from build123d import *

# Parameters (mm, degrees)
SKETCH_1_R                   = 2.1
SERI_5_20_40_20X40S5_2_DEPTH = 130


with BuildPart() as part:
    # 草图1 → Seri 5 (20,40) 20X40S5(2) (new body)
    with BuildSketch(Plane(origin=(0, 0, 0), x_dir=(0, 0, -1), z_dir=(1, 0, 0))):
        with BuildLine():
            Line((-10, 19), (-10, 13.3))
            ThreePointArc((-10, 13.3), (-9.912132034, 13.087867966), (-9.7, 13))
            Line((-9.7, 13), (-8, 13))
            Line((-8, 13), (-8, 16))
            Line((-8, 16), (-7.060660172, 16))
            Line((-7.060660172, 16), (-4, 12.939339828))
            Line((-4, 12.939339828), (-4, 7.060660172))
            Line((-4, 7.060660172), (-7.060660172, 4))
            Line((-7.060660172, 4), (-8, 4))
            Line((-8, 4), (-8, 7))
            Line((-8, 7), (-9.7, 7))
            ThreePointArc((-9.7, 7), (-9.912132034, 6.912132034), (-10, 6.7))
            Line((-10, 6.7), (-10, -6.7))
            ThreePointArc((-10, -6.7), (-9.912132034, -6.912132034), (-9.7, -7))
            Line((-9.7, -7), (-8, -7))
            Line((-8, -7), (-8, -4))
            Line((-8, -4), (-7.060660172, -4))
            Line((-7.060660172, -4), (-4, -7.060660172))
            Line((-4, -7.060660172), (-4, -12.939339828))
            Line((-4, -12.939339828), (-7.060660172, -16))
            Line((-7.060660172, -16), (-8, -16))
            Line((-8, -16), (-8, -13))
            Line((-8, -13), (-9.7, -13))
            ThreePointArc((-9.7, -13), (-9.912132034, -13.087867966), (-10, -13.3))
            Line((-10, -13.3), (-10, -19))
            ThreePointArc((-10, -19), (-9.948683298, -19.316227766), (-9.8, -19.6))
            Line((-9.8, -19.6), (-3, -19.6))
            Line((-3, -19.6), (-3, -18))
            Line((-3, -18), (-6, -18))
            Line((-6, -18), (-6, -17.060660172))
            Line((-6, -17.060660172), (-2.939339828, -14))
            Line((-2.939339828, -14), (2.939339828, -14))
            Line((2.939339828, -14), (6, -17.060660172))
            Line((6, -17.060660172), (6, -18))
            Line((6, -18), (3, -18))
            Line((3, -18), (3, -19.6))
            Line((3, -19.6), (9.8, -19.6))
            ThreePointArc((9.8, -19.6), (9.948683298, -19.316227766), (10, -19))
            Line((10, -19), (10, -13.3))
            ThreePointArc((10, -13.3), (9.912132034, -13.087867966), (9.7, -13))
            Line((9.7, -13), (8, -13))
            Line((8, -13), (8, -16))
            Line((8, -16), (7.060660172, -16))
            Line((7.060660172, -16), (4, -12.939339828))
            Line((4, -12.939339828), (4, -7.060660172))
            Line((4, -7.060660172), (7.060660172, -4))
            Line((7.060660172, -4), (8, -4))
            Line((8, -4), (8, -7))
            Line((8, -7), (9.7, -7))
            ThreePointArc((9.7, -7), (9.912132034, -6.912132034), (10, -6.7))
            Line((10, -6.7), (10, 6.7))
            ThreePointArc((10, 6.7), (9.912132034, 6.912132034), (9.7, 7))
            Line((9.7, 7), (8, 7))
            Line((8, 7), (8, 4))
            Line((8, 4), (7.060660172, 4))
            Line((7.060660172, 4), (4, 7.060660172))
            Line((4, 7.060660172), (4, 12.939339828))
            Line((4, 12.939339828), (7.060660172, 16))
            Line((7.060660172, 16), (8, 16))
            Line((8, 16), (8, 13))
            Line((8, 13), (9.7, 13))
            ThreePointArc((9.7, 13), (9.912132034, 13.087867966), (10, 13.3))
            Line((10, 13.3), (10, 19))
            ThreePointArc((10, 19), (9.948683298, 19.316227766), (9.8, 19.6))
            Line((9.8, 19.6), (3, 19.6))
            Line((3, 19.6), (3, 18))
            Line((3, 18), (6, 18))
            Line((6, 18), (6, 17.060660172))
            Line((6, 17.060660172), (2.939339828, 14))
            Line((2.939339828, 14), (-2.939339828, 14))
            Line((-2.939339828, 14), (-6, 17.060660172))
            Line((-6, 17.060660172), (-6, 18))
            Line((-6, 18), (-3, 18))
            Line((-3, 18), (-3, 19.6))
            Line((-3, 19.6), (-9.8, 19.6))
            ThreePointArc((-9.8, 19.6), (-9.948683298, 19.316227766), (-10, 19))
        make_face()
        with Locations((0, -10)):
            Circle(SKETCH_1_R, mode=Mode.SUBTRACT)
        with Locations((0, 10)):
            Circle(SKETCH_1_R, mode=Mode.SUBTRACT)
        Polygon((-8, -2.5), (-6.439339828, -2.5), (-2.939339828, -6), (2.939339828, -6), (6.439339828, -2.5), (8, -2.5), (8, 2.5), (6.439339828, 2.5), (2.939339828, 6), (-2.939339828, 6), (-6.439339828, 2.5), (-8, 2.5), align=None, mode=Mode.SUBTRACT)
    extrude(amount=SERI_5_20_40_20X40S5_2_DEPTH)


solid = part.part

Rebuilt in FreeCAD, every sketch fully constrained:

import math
import FreeCAD as App
import Part
import Sketcher

V = App.Vector

doc = App.newDocument("Part")
body = doc.addObject("PartDesign::Body", "Body")

sketch1 = body.newObject("Sketcher::SketchObject", "Sketch")
sketch1.AttachmentSupport = (doc.getObject("YZ_Plane"), [""])
sketch1.MapMode = "FlatFace"
sketch1.addGeometry([
    Part.LineSegment(V(19, 10, 0), V(13.3, 10, 0)),
    Part.ArcOfCircle(Part.Circle(V(13.3, 9.7, 0), V(0, 0, 1), 0.3), math.radians(90), math.radians(180)),
    Part.LineSegment(V(13, 9.7, 0), V(13, 8, 0)),
    Part.LineSegment(V(13, 8, 0), V(16, 8, 0)),
    Part.LineSegment(V(16, 8, 0), V(16, 7.06, 0)),
    Part.LineSegment(V(16, 7.06, 0), V(12.94, 4, 0)),
    Part.LineSegment(V(12.94, 4, 0), V(7.06, 4, 0)),
    Part.LineSegment(V(7.06, 4, 0), V(4, 7.06, 0)),
    Part.LineSegment(V(4, 7.06, 0), V(4, 8, 0)),
    Part.LineSegment(V(4, 8, 0), V(7, 8, 0)),
    Part.LineSegment(V(7, 8, 0), V(7, 9.7, 0)),
    Part.ArcOfCircle(Part.Circle(V(6.7, 9.7, 0), V(0, 0, 1), 0.3), math.radians(0), math.radians(90)),
    Part.LineSegment(V(6.7, 10, 0), V(-6.7, 10, 0)),
    Part.ArcOfCircle(Part.Circle(V(-6.7, 9.7, 0), V(0, 0, 1), 0.3), math.radians(90), math.radians(180)),
    Part.LineSegment(V(-7, 9.7, 0), V(-7, 8, 0)),
    Part.LineSegment(V(-7, 8, 0), V(-4, 8, 0)),
    Part.LineSegment(V(-4, 8, 0), V(-4, 7.06, 0)),
    Part.LineSegment(V(-4, 7.06, 0), V(-7.06, 4, 0)),
    Part.LineSegment(V(-7.06, 4, 0), V(-12.94, 4, 0)),
    Part.LineSegment(V(-12.94, 4, 0), V(-16, 7.06, 0)),
    Part.LineSegment(V(-16, 7.06, 0), V(-16, 8, 0)),
    Part.LineSegment(V(-16, 8, 0), V(-13, 8, 0)),
    Part.LineSegment(V(-13, 8, 0), V(-13, 9.7, 0)),
    Part.ArcOfCircle(Part.Circle(V(-13.3, 9.7, 0), V(0, 0, 1), 0.3), math.radians(0), math.radians(90)),
    Part.LineSegment(V(-13.3, 10, 0), V(-19, 10, 0)),
    Part.ArcOfCircle(Part.Circle(V(-19, 9, 0), V(0, 0, 1), 1), math.radians(90), math.radians(127)),
    Part.LineSegment(V(-19.6, 9.8, 0), V(-19.6, 3, 0)),
    Part.LineSegment(V(-19.6, 3, 0), V(-18, 3, 0)),
    Part.LineSegment(V(-18, 3, 0), V(-18, 6, 0)),
    Part.LineSegment(V(-18, 6, 0), V(-17.06, 6, 0)),
    Part.LineSegment(V(-17.06, 6, 0), V(-14, 2.94, 0)),
    Part.LineSegment(V(-14, 2.94, 0), V(-14, -2.94, 0)),
    Part.LineSegment(V(-14, -2.94, 0), V(-17.06, -6, 0)),
    Part.LineSegment(V(-17.06, -6, 0), V(-18, -6, 0)),
    Part.LineSegment(V(-18, -6, 0), V(-18, -3, 0)),
    Part.LineSegment(V(-18, -3, 0), V(-19.6, -3, 0)),
    Part.LineSegment(V(-19.6, -3, 0), V(-19.6, -9.8, 0)),
    Part.ArcOfCircle(Part.Circle(V(-19, -9, 0), V(0, 0, 1), 1), math.radians(-127), math.radians(-90)),
    Part.LineSegment(V(-19, -10, 0), V(-13.3, -10, 0)),
    Part.ArcOfCircle(Part.Circle(V(-13.3, -9.7, 0), V(0, 0, 1), 0.3), math.radians(-90), math.radians(0)),
    Part.LineSegment(V(-13, -9.7, 0), V(-13, -8, 0)),
    Part.LineSegment(V(-13, -8, 0), V(-16, -8, 0)),
    Part.LineSegment(V(-16, -8, 0), V(-16, -7.06, 0)),
    Part.LineSegment(V(-16, -7.06, 0), V(-12.94, -4, 0)),
    Part.LineSegment(V(-12.94, -4, 0), V(-7.06, -4, 0)),
    Part.LineSegment(V(-7.06, -4, 0), V(-4, -7.06, 0)),
    Part.LineSegment(V(-4, -7.06, 0), V(-4, -8, 0)),
    Part.LineSegment(V(-4, -8, 0), V(-7, -8, 0)),
    Part.LineSegment(V(-7, -8, 0), V(-7, -9.7, 0)),
    Part.ArcOfCircle(Part.Circle(V(-6.7, -9.7, 0), V(0, 0, 1), 0.3), math.radians(-180), math.radians(-90)),
    Part.LineSegment(V(-6.7, -10, 0), V(6.7, -10, 0)),
    Part.ArcOfCircle(Part.Circle(V(6.7, -9.7, 0), V(0, 0, 1), 0.3), math.radians(-90), math.radians(0)),
    Part.LineSegment(V(7, -9.7, 0), V(7, -8, 0)),
    Part.LineSegment(V(7, -8, 0), V(4, -8, 0)),
    Part.LineSegment(V(4, -8, 0), V(4, -7.06, 0)),
    Part.LineSegment(V(4, -7.06, 0), V(7.06, -4, 0)),
    Part.LineSegment(V(7.06, -4, 0), V(12.94, -4, 0)),
    Part.LineSegment(V(12.94, -4, 0), V(16, -7.06, 0)),
    Part.LineSegment(V(16, -7.06, 0), V(16, -8, 0)),
    Part.LineSegment(V(16, -8, 0), V(13, -8, 0)),
    Part.LineSegment(V(13, -8, 0), V(13, -9.7, 0)),
    Part.ArcOfCircle(Part.Circle(V(13.3, -9.7, 0), V(0, 0, 1), 0.3), math.radians(-180), math.radians(-90)),
    Part.LineSegment(V(13.3, -10, 0), V(19, -10, 0)),
    Part.ArcOfCircle(Part.Circle(V(19, -9, 0), V(0, 0, 1), 1), math.radians(-90), math.radians(-53)),
    Part.LineSegment(V(19.6, -9.8, 0), V(19.6, -3, 0)),
    Part.LineSegment(V(19.6, -3, 0), V(18, -3, 0)),
    Part.LineSegment(V(18, -3, 0), V(18, -6, 0)),
    Part.LineSegment(V(18, -6, 0), V(17.06, -6, 0)),
    Part.LineSegment(V(17.06, -6, 0), V(14, -2.94, 0)),
    Part.LineSegment(V(14, -2.94, 0), V(14, 2.94, 0)),
    Part.LineSegment(V(14, 2.94, 0), V(17.06, 6, 0)),
    Part.LineSegment(V(17.06, 6, 0), V(18, 6, 0)),
    Part.LineSegment(V(18, 6, 0), V(18, 3, 0)),
    Part.LineSegment(V(18, 3, 0), V(19.6, 3, 0)),
    Part.LineSegment(V(19.6, 3, 0), V(19.6, 9.8, 0)),
    Part.ArcOfCircle(Part.Circle(V(19, 9, 0), V(0, 0, 1), 1), math.radians(53), math.radians(90)),
    Part.Circle(V(-10, 0, 0), V(0, 0, 1), 2.1),
    Part.LineSegment(V(-2.5, 6.44, 0), V(-2.5, 8, 0)),
    Part.LineSegment(V(-2.5, 8, 0), V(2.5, 8, 0)),
    Part.LineSegment(V(2.5, 8, 0), V(2.5, 6.44, 0)),
    Part.LineSegment(V(2.5, 6.44, 0), V(6, 2.94, 0)),
    Part.LineSegment(V(6, 2.94, 0), V(6, -2.94, 0)),
    Part.LineSegment(V(6, -2.94, 0), V(2.5, -6.44, 0)),
    Part.LineSegment(V(2.5, -6.44, 0), V(2.5, -8, 0)),
    Part.LineSegment(V(2.5, -8, 0), V(-2.5, -8, 0)),
    Part.LineSegment(V(-2.5, -8, 0), V(-2.5, -6.44, 0)),
    Part.LineSegment(V(-2.5, -6.44, 0), V(-6, -2.94, 0)),
    Part.LineSegment(V(-6, -2.94, 0), V(-6, 2.94, 0)),
    Part.LineSegment(V(-6, 2.94, 0), V(-2.5, 6.44, 0)),
    Part.Circle(V(10, 0, 0), V(0, 0, 1), 2.1),
], False)
sketch1.addConstraint([
    Sketcher.Constraint("Tangent", 0, 2, 1, 1),
    Sketcher.Constraint("Tangent", 1, 2, 2, 1),
    Sketcher.Constraint("Coincident", 2, 2, 3, 1),
    Sketcher.Constraint("Coincident", 3, 2, 4, 1),
    Sketcher.Constraint("Coincident", 4, 2, 5, 1),
    Sketcher.Constraint("Coincident", 5, 2, 6, 1),
    Sketcher.Constraint("Coincident", 6, 2, 7, 1),
    Sketcher.Constraint("Coincident", 7, 2, 8, 1),
    Sketcher.Constraint("Coincident", 8, 2, 9, 1),
    Sketcher.Constraint("Coincident", 9, 2, 10, 1),
    Sketcher.Constraint("Tangent", 10, 2, 11, 1),
    Sketcher.Constraint("Tangent", 11, 2, 12, 1),
    Sketcher.Constraint("Tangent", 12, 2, 13, 1),
    Sketcher.Constraint("Tangent", 13, 2, 14, 1),
    Sketcher.Constraint("Coincident", 14, 2, 15, 1),
    Sketcher.Constraint("Coincident", 15, 2, 16, 1),
    Sketcher.Constraint("Coincident", 16, 2, 17, 1),
    Sketcher.Constraint("Coincident", 17, 2, 18, 1),
    Sketcher.Constraint("Coincident", 18, 2, 19, 1),
    Sketcher.Constraint("Coincident", 19, 2, 20, 1),
    Sketcher.Constraint("Coincident", 20, 2, 21, 1),
    Sketcher.Constraint("Coincident", 21, 2, 22, 1),
    Sketcher.Constraint("Tangent", 22, 2, 23, 1),
    Sketcher.Constraint("Tangent", 23, 2, 24, 1),
    Sketcher.Constraint("Tangent", 24, 2, 25, 1),
    Sketcher.Constraint("Coincident", 25, 2, 26, 1),
    Sketcher.Constraint("Coincident", 26, 2, 27, 1),
    Sketcher.Constraint("Coincident", 27, 2, 28, 1),
    Sketcher.Constraint("Coincident", 28, 2, 29, 1),
    Sketcher.Constraint("Coincident", 29, 2, 30, 1),
    Sketcher.Constraint("Coincident", 30, 2, 31, 1),
    Sketcher.Constraint("Coincident", 31, 2, 32, 1),
    Sketcher.Constraint("Coincident", 32, 2, 33, 1),
    Sketcher.Constraint("Coincident", 33, 2, 34, 1),
    Sketcher.Constraint("Coincident", 34, 2, 35, 1),
    Sketcher.Constraint("Coincident", 35, 2, 36, 1),
    Sketcher.Constraint("Coincident", 36, 2, 37, 1),
    Sketcher.Constraint("Tangent", 37, 2, 38, 1),
    Sketcher.Constraint("Tangent", 38, 2, 39, 1),
    Sketcher.Constraint("Tangent", 39, 2, 40, 1),
    Sketcher.Constraint("Coincident", 40, 2, 41, 1),
    Sketcher.Constraint("Coincident", 41, 2, 42, 1),
    Sketcher.Constraint("Coincident", 42, 2, 43, 1),
    Sketcher.Constraint("Coincident", 43, 2, 44, 1),
    Sketcher.Constraint("Coincident", 44, 2, 45, 1),
    Sketcher.Constraint("Coincident", 45, 2, 46, 1),
    Sketcher.Constraint("Coincident", 46, 2, 47, 1),
    Sketcher.Constraint("Coincident", 47, 2, 48, 1),
    Sketcher.Constraint("Tangent", 48, 2, 49, 1),
    Sketcher.Constraint("Tangent", 49, 2, 50, 1),
    Sketcher.Constraint("Tangent", 50, 2, 51, 1),
    Sketcher.Constraint("Tangent", 51, 2, 52, 1),
    Sketcher.Constraint("Coincident", 52, 2, 53, 1),
    Sketcher.Constraint("Coincident", 53, 2, 54, 1),
    Sketcher.Constraint("Coincident", 54, 2, 55, 1),
    Sketcher.Constraint("Coincident", 55, 2, 56, 1),
    Sketcher.Constraint("Coincident", 56, 2, 57, 1),
    Sketcher.Constraint("Coincident", 57, 2, 58, 1),
    Sketcher.Constraint("Coincident", 58, 2, 59, 1),
    Sketcher.Constraint("Coincident", 59, 2, 60, 1),
    Sketcher.Constraint("Tangent", 60, 2, 61, 1),
    Sketcher.Constraint("Tangent", 61, 2, 62, 1),
    Sketcher.Constraint("Tangent", 62, 2, 63, 1),
    Sketcher.Constraint("Coincident", 63, 2, 64, 1),
    Sketcher.Constraint("Coincident", 64, 2, 65, 1),
    Sketcher.Constraint("Coincident", 65, 2, 66, 1),
    Sketcher.Constraint("Coincident", 66, 2, 67, 1),
    Sketcher.Constraint("Coincident", 67, 2, 68, 1),
    Sketcher.Constraint("Coincident", 68, 2, 69, 1),
    Sketcher.Constraint("Coincident", 69, 2, 70, 1),
    Sketcher.Constraint("Coincident", 70, 2, 71, 1),
    Sketcher.Constraint("Coincident", 71, 2, 72, 1),
    Sketcher.Constraint("Coincident", 72, 2, 73, 1),
    Sketcher.Constraint("Coincident", 73, 2, 74, 1),
    Sketcher.Constraint("Coincident", 74, 2, 75, 1),
    Sketcher.Constraint("Tangent", 75, 2, 0, 1),
    Sketcher.Constraint("Coincident", 77, 2, 78, 1),
    Sketcher.Constraint("Coincident", 78, 2, 79, 1),
    Sketcher.Constraint("Coincident", 79, 2, 80, 1),
    Sketcher.Constraint("Coincident", 80, 2, 81, 1),
    Sketcher.Constraint("Coincident", 81, 2, 82, 1),
    Sketcher.Constraint("Coincident", 82, 2, 83, 1),
    Sketcher.Constraint("Coincident", 83, 2, 84, 1),
    Sketcher.Constraint("Coincident", 84, 2, 85, 1),
    Sketcher.Constraint("Coincident", 85, 2, 86, 1),
    Sketcher.Constraint("Coincident", 86, 2, 87, 1),
    Sketcher.Constraint("Coincident", 87, 2, 88, 1),
    Sketcher.Constraint("Coincident", 88, 2, 77, 1),
    Sketcher.Constraint("Horizontal", 0),
    Sketcher.Constraint("Vertical", 2),
    Sketcher.Constraint("Horizontal", 3),
    Sketcher.Constraint("Vertical", 4),
    Sketcher.Constraint("Horizontal", 6),
    Sketcher.Constraint("Vertical", 8),
    Sketcher.Constraint("Horizontal", 9),
    Sketcher.Constraint("Vertical", 10),
    Sketcher.Constraint("Horizontal", 12),
    Sketcher.Constraint("Vertical", 14),
    Sketcher.Constraint("Horizontal", 15),
    Sketcher.Constraint("Vertical", 16),
    Sketcher.Constraint("Horizontal", 18),
    Sketcher.Constraint("Vertical", 20),
    Sketcher.Constraint("Horizontal", 21),
    Sketcher.Constraint("Vertical", 22),
    Sketcher.Constraint("Horizontal", 24),
    Sketcher.Constraint("Vertical", 26),
    Sketcher.Constraint("Horizontal", 27),
    Sketcher.Constraint("Vertical", 28),
    Sketcher.Constraint("Horizontal", 29),
    Sketcher.Constraint("Vertical", 31),
    Sketcher.Constraint("Horizontal", 33),
    Sketcher.Constraint("Vertical", 34),
    Sketcher.Constraint("Horizontal", 35),
    Sketcher.Constraint("Vertical", 36),
    Sketcher.Constraint("Horizontal", 38),
    Sketcher.Constraint("Vertical", 40),
    Sketcher.Constraint("Horizontal", 41),
    Sketcher.Constraint("Vertical", 42),
    Sketcher.Constraint("Horizontal", 44),
    Sketcher.Constraint("Vertical", 46),
    Sketcher.Constraint("Horizontal", 47),
    Sketcher.Constraint("Vertical", 48),
    Sketcher.Constraint("Horizontal", 50),
    Sketcher.Constraint("Vertical", 52),
    Sketcher.Constraint("Horizontal", 53),
    Sketcher.Constraint("Vertical", 54),
    Sketcher.Constraint("Horizontal", 56),
    Sketcher.Constraint("Vertical", 58),
    Sketcher.Constraint("Horizontal", 59),
    Sketcher.Constraint("Vertical", 60),
    Sketcher.Constraint("Horizontal", 62),
    Sketcher.Constraint("Vertical", 64),
    Sketcher.Constraint("Horizontal", 65),
    Sketcher.Constraint("Vertical", 66),
    Sketcher.Constraint("Horizontal", 67),
    Sketcher.Constraint("Vertical", 69),
    Sketcher.Constraint("Horizontal", 71),
    Sketcher.Constraint("Vertical", 72),
    Sketcher.Constraint("Horizontal", 73),
    Sketcher.Constraint("Vertical", 74),
    Sketcher.Constraint("Vertical", 77),
    Sketcher.Constraint("Horizontal", 78),
    Sketcher.Constraint("Vertical", 79),
    Sketcher.Constraint("Vertical", 81),
    Sketcher.Constraint("Vertical", 83),
    Sketcher.Constraint("Horizontal", 84),
    Sketcher.Constraint("Vertical", 85),
    Sketcher.Constraint("Vertical", 87),
    Sketcher.Constraint("Equal", 1, 11),
    Sketcher.Constraint("Equal", 11, 13),
    Sketcher.Constraint("Equal", 13, 23),
    Sketcher.Constraint("Equal", 25, 37),
    Sketcher.Constraint("Equal", 23, 39),
    Sketcher.Constraint("Equal", 39, 49),
    Sketcher.Constraint("Equal", 49, 51),
    Sketcher.Constraint("Equal", 51, 61),
    Sketcher.Constraint("Equal", 37, 63),
    Sketcher.Constraint("Equal", 63, 75),
    Sketcher.Constraint("Equal", 76, 89),
    Sketcher.Constraint("Symmetric", 1, 3, 39, 3, -1, 1),
    Sketcher.Constraint("Symmetric", 11, 3, 49, 3, -1, 1),
    Sketcher.Constraint("Symmetric", 23, 3, 61, 3, -1, 1),
    Sketcher.Constraint("Symmetric", 76, 3, 89, 3, -1, 1),
    Sketcher.Constraint("Symmetric", 3, 2, 41, 2, -1, 1),
    Sketcher.Constraint("Symmetric", 5, 2, 43, 2, -1, 1),
    Sketcher.Constraint("Symmetric", 7, 2, 45, 2, -1, 1),
    Sketcher.Constraint("Symmetric", 14, 2, 52, 2, -1, 1),
    Sketcher.Constraint("Symmetric", 16, 2, 54, 2, -1, 1),
    Sketcher.Constraint("Symmetric", 17, 2, 55, 2, -1, 1),
    Sketcher.Constraint("Symmetric", 19, 2, 57, 2, -1, 1),
    Sketcher.Constraint("Symmetric", 25, 2, 63, 2, -1, 1),
    Sketcher.Constraint("Symmetric", 27, 2, 65, 2, -1, 1),
    Sketcher.Constraint("Symmetric", 29, 2, 67, 2, -1, 1),
    Sketcher.Constraint("Symmetric", 30, 2, 68, 2, -1, 1),
    Sketcher.Constraint("Symmetric", 32, 2, 70, 2, -1, 1),
    Sketcher.Constraint("Symmetric", 34, 2, 72, 2, -1, 1),
    Sketcher.Constraint("Symmetric", 36, 2, 74, 2, -1, 1),
    Sketcher.Constraint("Symmetric", 77, 2, 83, 2, -1, 1),
    Sketcher.Constraint("Symmetric", 79, 2, 85, 2, -1, 1),
    Sketcher.Constraint("Symmetric", 80, 2, 86, 2, -1, 1),
    Sketcher.Constraint("Symmetric", 1, 3, 23, 3, -2),
    Sketcher.Constraint("Symmetric", 9, 2, 14, 2, -2),
    Sketcher.Constraint("Symmetric", 7, 2, 16, 2, -2),
    Sketcher.Constraint("Symmetric", 6, 2, 17, 2, -2),
    Sketcher.Constraint("Symmetric", 4, 2, 19, 2, -2),
    Sketcher.Constraint("Symmetric", 36, 2, 63, 2, -2),
    Sketcher.Constraint("Symmetric", 34, 2, 65, 2, -2),
    Sketcher.Constraint("Symmetric", 32, 2, 67, 2, -2),
    Sketcher.Constraint("Symmetric", 82, 2, 85, 2, -2),
    Sketcher.Constraint("PointOnObject", 76, 3, -1),
    Sketcher.Constraint("Perpendicular", 5, 7),
    Sketcher.Constraint("Perpendicular", 7, 17),
    Sketcher.Constraint("Perpendicular", 17, 19),
    Sketcher.Constraint("Parallel", 19, 30),
    Sketcher.Constraint("Perpendicular", 30, 32),
    Sketcher.Constraint("Parallel", 32, 43),
    Sketcher.Constraint("Perpendicular", 43, 45),
    Sketcher.Constraint("Perpendicular", 55, 57),
    Sketcher.Constraint("Perpendicular", 68, 70),
    Sketcher.Constraint("Perpendicular", 70, 80),
    Sketcher.Constraint("Perpendicular", 80, 82),
    Sketcher.Constraint("Perpendicular", 86, 88),
    Sketcher.Constraint("Horizontal", 1, 3, 11, 3),
    Sketcher.Constraint("Horizontal", 4, 2, 7, 2),
    Sketcher.Constraint("Horizontal", 3, 2, 8, 2),
    Sketcher.Constraint("Horizontal", 15, 2, 20, 2),
    Sketcher.Constraint("Horizontal", 41, 2, 46, 2),
    Sketcher.Constraint("Horizontal", 53, 2, 58, 2),
    Sketcher.Constraint("Horizontal", 21, 2, 77, 2),
    Sketcher.Constraint("Horizontal", 69, 2, 80, 2),
    Sketcher.Constraint("Horizontal", 80, 2, 87, 2),
    Sketcher.Constraint("Equal", 3, 9),
    Sketcher.Constraint("Equal", 71, 4),
    Sketcher.Constraint("Equal", 59, 28),
    Sketcher.Constraint("Equal", 56, 31),
    Sketcher.Constraint("Equal", 19, 30),
    Sketcher.Constraint("Radius", 25, 1.0),
    Sketcher.Constraint("Diameter", 76, 4.2),
    Sketcher.Constraint("Radius", 1, 0.3),
    Sketcher.Constraint("DistanceX", 3, 1, 3, 2, 3.0),
    Sketcher.Constraint("DistanceX", 78, 1, 78, 2, 5.0),
    Sketcher.Constraint("DistanceX", 0, 2, 0, 1, 5.7),
    Sketcher.Constraint("DistanceX", 12, 2, 12, 1, 13.4),
    Sketcher.Constraint("DistanceX", 27, 1, 27, 2, 1.6),
    Sketcher.Constraint("DistanceY", 2, 2, 2, 1, 1.7),
    Sketcher.Constraint("DistanceY", 26, 2, 26, 1, 6.8),
    Sketcher.Constraint("DistanceX", 25, 3, -1, 1, 19.0),
    Sketcher.Constraint("DistanceY", -1, 1, 25, 3, 9.0),
    Sketcher.Constraint("DistanceX", 76, 3, -1, 1, 10.0),
    Sketcher.Constraint("DistanceY", -1, 1, 5, 2, 4.0),
    Sketcher.Constraint("DistanceX", -1, 1, 80, 2, 6.0),
    Sketcher.Constraint("DistanceX", 6, 2, 6, 1, 5.87868),
])
pad1 = body.newObject("PartDesign::Pad", "Pad")
pad1.Profile = sketch1
pad1.Length = 130

doc.recompute()
